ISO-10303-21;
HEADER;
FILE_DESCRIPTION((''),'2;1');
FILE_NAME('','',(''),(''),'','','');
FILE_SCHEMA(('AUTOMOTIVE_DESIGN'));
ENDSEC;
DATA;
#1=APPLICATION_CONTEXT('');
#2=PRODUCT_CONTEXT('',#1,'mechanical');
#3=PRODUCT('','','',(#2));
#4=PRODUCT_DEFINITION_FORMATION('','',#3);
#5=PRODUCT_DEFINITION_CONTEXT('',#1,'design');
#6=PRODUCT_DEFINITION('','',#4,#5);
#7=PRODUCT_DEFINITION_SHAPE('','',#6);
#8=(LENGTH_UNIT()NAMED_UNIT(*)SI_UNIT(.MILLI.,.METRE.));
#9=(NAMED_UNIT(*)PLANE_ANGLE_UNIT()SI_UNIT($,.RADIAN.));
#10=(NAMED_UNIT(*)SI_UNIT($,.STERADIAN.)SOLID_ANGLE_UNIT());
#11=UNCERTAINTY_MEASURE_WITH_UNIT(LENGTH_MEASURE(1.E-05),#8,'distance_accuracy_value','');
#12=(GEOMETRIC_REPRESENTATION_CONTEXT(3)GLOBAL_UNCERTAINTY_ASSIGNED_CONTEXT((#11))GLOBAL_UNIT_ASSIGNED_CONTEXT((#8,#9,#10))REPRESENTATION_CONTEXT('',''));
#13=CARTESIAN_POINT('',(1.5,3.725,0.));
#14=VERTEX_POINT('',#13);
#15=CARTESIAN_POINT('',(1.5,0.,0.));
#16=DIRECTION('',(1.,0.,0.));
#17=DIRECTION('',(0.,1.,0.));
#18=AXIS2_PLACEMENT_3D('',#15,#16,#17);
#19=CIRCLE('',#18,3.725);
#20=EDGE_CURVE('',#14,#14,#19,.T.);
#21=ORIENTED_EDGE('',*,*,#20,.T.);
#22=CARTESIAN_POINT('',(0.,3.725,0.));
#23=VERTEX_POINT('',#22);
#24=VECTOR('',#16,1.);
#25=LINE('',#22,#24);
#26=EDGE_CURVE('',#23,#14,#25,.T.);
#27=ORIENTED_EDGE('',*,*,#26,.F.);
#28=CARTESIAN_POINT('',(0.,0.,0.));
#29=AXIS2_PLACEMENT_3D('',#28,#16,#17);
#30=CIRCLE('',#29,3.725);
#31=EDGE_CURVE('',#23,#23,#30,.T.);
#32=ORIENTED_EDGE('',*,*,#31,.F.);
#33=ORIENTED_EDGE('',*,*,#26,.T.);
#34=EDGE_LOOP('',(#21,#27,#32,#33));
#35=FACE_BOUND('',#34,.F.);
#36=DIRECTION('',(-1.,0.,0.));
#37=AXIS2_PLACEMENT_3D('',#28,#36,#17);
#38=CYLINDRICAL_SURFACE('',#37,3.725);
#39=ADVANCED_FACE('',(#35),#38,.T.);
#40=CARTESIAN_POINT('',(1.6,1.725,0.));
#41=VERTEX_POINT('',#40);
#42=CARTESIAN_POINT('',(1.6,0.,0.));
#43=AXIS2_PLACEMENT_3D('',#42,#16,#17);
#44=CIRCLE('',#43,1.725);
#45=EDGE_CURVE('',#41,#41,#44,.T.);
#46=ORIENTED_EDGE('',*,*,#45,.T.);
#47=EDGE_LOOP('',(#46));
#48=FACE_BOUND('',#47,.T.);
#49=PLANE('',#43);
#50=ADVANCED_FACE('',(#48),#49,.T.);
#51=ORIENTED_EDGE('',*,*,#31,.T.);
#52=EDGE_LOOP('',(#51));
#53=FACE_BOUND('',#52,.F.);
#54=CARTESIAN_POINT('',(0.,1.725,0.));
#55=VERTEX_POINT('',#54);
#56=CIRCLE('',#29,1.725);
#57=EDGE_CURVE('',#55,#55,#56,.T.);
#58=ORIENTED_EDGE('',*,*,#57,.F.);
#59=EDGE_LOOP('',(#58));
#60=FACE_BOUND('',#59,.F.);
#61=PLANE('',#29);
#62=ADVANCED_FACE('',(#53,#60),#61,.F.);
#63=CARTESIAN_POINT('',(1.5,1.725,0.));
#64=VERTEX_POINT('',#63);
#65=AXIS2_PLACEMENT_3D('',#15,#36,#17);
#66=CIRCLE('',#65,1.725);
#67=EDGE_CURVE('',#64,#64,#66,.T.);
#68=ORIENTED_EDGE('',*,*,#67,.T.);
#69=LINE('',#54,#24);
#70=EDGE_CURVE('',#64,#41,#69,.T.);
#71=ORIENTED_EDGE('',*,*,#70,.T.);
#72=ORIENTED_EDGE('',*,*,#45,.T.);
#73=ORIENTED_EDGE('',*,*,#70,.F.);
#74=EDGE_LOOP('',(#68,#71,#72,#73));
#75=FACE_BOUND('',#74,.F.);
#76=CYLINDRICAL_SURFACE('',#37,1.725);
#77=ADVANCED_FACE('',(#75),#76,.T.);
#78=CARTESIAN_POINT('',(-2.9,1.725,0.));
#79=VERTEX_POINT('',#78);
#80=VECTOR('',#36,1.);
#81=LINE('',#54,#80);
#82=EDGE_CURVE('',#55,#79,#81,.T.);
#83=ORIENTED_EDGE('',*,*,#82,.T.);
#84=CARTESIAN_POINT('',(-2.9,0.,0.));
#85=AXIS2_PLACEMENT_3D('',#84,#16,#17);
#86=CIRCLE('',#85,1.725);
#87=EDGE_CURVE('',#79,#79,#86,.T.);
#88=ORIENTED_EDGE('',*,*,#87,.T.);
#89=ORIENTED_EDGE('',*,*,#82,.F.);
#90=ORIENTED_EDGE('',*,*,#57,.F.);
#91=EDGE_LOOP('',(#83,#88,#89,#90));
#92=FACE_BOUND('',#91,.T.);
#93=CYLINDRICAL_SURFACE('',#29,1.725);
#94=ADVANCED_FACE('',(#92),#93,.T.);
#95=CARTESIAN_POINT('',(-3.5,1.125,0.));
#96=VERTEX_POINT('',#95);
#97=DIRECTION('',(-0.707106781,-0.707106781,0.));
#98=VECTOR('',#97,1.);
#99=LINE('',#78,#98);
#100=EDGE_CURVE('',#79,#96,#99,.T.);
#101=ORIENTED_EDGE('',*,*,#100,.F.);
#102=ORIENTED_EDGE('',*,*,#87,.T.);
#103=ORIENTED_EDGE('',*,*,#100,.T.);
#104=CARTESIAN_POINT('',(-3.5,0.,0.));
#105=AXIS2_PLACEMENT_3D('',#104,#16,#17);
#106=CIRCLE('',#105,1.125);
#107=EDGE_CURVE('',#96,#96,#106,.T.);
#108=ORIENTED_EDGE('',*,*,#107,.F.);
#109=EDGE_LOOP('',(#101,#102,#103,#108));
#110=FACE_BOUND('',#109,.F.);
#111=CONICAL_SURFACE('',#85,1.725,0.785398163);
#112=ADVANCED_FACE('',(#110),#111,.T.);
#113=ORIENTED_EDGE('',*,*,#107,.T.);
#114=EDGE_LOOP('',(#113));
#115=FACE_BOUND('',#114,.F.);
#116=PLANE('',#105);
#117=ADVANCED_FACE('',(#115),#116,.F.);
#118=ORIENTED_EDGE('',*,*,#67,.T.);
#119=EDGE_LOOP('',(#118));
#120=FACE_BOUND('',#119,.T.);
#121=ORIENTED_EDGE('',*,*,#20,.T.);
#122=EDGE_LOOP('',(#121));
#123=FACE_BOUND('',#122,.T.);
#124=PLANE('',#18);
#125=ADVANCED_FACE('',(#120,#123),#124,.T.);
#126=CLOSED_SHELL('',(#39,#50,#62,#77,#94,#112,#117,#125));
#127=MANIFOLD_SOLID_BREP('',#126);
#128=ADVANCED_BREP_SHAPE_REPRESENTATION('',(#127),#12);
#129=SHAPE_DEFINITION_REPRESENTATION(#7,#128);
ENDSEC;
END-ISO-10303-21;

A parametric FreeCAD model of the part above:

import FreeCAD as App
import Part
import Sketcher

V = App.Vector
Q = App.Units.Quantity


def edges_at(feature, points):
    """Names of the edges that pass closest to the given points."""
    edges = feature.Shape.Edges
    near = lambda p: min(range(len(edges)), key=lambda i: edges[i].distToShape(Part.Vertex(*p))[0])
    return sorted({f"Edge{near(p) + 1}" for p in points})

doc = App.newDocument("Part")
body = doc.addObject("PartDesign::Body", "Body")

# Sketch on YZ plane
sketch1 = body.newObject("Sketcher::SketchObject", "Sketch")
sketch1.AttachmentSupport = (doc.getObject("YZ_Plane"), [""])
sketch1.MapMode = "FlatFace"
sketch1.addGeometry(Part.Circle(V(0, 0, 0), V(0, 0, 1), 3.725), False)
sketch1.addConstraint(Sketcher.Constraint("Coincident", 0, 3, -1, 1))
sketch1.addConstraint(Sketcher.Constraint("Diameter", 0, Q("7.45 mm")))
pad1 = body.newObject("PartDesign::Pad", "Pad")
pad1.Profile = sketch1
pad1.Length = 1.5

# Sketch on YZ plane
sketch2 = body.newObject("Sketcher::SketchObject", "Sketch001")
sketch2.AttachmentSupport = (doc.getObject("YZ_Plane"), [""])
sketch2.MapMode = "FlatFace"
sketch2.addGeometry(Part.Circle(V(0, 0, 0), V(0, 0, 1), 1.725), False)
sketch2.addConstraint(Sketcher.Constraint("Coincident", 0, 3, -1, 1))
sketch2.addConstraint(Sketcher.Constraint("Diameter", 0, Q("3.45 mm")))
pad2 = body.newObject("PartDesign::Pad", "Pad001")
pad2.Profile = sketch2
pad2.Length = 3.5
pad2.Reversed = True

# Sketch on YZ plane
sketch3 = body.newObject("Sketcher::SketchObject", "Sketch002")
sketch3.AttachmentSupport = (doc.getObject("YZ_Plane"), [""])
sketch3.MapMode = "FlatFace"
sketch3.addGeometry(Part.Circle(V(0, 0, 0), V(0, 0, 1), 1.725), False)
sketch3.addConstraint(Sketcher.Constraint("Coincident", 0, 3, -1, 1))
sketch3.addConstraint(Sketcher.Constraint("Diameter", 0, Q("3.45 mm")))
pad3 = body.newObject("PartDesign::Pad", "Pad002")
pad3.Profile = sketch3
pad3.Length = 1.6
doc.recompute()

chamfer = body.newObject("PartDesign::Chamfer", "Chamfer")
chamfer.Base = (pad3, edges_at(pad3, [(-3.5, -1.725, 0)]))
chamfer.Size = 0.6

doc.recompute()
